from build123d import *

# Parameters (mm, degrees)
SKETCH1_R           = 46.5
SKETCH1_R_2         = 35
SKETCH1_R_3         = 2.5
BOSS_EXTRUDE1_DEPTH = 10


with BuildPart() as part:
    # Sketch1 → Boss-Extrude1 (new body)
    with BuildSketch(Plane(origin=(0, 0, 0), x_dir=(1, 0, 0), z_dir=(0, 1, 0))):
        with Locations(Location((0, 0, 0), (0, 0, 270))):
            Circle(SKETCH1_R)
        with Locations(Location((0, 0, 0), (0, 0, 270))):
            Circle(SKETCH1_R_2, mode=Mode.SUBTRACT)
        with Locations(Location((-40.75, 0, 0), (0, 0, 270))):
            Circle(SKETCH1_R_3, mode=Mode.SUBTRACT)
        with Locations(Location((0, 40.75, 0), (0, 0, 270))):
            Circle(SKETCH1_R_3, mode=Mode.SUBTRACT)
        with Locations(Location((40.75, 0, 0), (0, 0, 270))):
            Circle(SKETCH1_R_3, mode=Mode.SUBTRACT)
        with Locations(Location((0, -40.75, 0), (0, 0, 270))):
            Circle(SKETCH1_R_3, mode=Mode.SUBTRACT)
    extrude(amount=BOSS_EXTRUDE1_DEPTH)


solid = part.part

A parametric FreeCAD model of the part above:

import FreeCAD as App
import Part
import Sketcher
from FreeCAD import Vector

doc = App.newDocument("Part")
body = doc.addObject("PartDesign::Body", "Body")

sketch1 = body.newObject("Sketcher::SketchObject", "Sketch")
sketch1.AttachmentSupport = (doc.getObject("XZ_Plane"), [""])
sketch1.MapMode = "FlatFace"
sketch1.addGeometry([
    Part.Circle(Vector(0, 0, 0), Vector(0, 0, 1), 46.5),
    Part.Circle(Vector(0, -40.8, 0), Vector(0, 0, 1), 2.5),
    Part.Circle(Vector(-40.8, 0, 0), Vector(0, 0, 1), 2.5),
    Part.Circle(Vector(40.8, 0, 0), Vector(0, 0, 1), 2.5),
    Part.Circle(Vector(0, 0, 0), Vector(0, 0, 1), 35),
    Part.Circle(Vector(0, 40.8, 0), Vector(0, 0, 1), 2.5),
], False)
sketch1.addConstraint([
    Sketcher.Constraint("Coincident", 0, 3, -1, 1),
    Sketcher.Constraint("Coincident", 4, 3, -1, 1),
    Sketcher.Constraint("Equal", 1, 2),
    Sketcher.Constraint("Equal", 2, 3),
    Sketcher.Constraint("Equal", 3, 5),
    Sketcher.Constraint("Symmetric", 2, 3, 3, 3, -1, 1),
    Sketcher.Constraint("Symmetric", 1, 3, 5, 3, -1, 1),
    Sketcher.Constraint("PointOnObject", 1, 3, -2),
    Sketcher.Constraint("PointOnObject", 2, 3, -1),
    Sketcher.Constraint("Diameter", 0, 93.0),
    Sketcher.Constraint("Diameter", 1, 5.0),
    Sketcher.Constraint("Diameter", 4, 70.0),
    Sketcher.Constraint("DistanceX", 2, 3, 3, 3, 81.5),
    Sketcher.Constraint("DistanceY", 1, 3, 5, 3, 81.5),
])
pad1 = body.newObject("PartDesign::Pad", "Pad")
pad1.Profile = sketch1
pad1.Length = 10
pad1.Reversed = True

doc.recompute()
